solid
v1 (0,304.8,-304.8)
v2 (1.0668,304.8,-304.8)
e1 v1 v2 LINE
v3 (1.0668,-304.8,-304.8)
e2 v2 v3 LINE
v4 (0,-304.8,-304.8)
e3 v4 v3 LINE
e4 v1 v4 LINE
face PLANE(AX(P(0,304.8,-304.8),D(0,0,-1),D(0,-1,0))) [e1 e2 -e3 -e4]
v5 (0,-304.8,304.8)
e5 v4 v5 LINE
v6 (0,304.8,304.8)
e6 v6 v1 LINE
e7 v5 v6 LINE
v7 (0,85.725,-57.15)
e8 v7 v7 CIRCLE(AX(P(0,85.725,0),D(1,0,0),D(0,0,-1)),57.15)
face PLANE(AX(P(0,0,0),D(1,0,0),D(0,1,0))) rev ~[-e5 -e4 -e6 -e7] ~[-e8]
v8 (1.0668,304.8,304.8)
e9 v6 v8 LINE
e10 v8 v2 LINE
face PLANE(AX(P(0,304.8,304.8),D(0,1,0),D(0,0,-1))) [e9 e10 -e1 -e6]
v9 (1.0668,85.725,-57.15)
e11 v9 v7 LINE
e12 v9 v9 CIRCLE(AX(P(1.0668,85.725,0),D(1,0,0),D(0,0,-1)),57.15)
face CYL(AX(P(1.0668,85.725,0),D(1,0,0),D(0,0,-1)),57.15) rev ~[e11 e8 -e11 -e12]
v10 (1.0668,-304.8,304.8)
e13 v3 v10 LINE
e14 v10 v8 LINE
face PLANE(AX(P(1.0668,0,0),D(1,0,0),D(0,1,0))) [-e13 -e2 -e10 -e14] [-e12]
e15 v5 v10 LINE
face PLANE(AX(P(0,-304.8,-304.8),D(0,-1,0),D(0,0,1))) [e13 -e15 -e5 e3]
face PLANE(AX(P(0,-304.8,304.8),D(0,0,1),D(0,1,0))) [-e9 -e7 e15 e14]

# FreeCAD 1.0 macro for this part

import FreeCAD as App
import Part
import Sketcher
Q = App.Units.Quantity


def add_polygon(sketch, points):
    """Adds a closed chain of lines whose ends are joined by coincident constraints."""
    first, n = sketch.GeometryCount, len(points)
    for a, b in zip(points, points[1:] + points[:1]):
        sketch.addGeometry(Part.LineSegment(App.Vector(*a, 0), App.Vector(*b, 0)), False)
    for i in range(n):
        sketch.addConstraint(Sketcher.Constraint("Coincident", first + i, 2, first + (i + 1) % n, 1))

doc = App.newDocument("Part")
body = doc.addObject("PartDesign::Body", "Body")

# Sketch on YZ plane
sketch1 = body.newObject("Sketcher::SketchObject", "Sketch")
sketch1.AttachmentSupport = (doc.getObject("YZ_Plane"), [""])
sketch1.MapMode = "FlatFace"
add_polygon(sketch1, [(305, 305), (-305, 305), (-305, -305), (305, -305)])  # lines 0-3
sketch1.addConstraint([
    Sketcher.Constraint("Horizontal", 0),
    Sketcher.Constraint("Vertical", 1),
    Sketcher.Constraint("Horizontal", 2),
    Sketcher.Constraint("Vertical", 3),
    Sketcher.Constraint("Symmetric", 0, 2, 2, 2, -1, 1),
    Sketcher.Constraint("Equal", 2, 1),
    Sketcher.Constraint("DistanceX", 0, 2, 0, 1, Q("24 in")),
])
pad1 = body.newObject("PartDesign::Pad", "Pad")
pad1.Profile = sketch1
pad1.Length = Q("0.042 in")

# Sketch on YZ plane
sketch2 = body.newObject("Sketcher::SketchObject", "Sketch001")
sketch2.AttachmentSupport = (doc.getObject("YZ_Plane"), [""])
sketch2.MapMode = "FlatFace"
sketch2.AttachmentOffset = App.Placement(App.Vector(0, 0, 0.042 * 25.4), App.Rotation())
sketch2.addGeometry(Part.Circle(App.Vector(86, 0, 0), App.Vector(0, 0, 1), 57), False)
sketch2.addConstraint([
    Sketcher.Constraint("PointOnObject", 0, 3, -1),
    Sketcher.Constraint("Diameter", 0, Q("4.5 in")),
    Sketcher.Constraint("DistanceX", -1, 1, 0, 3, Q("3.375 in")),
])
pocket1 = body.newObject("PartDesign::Pocket", "Pocket")
pocket1.Profile = sketch2
pocket1.Type = "ThroughAll"

doc.recompute()
